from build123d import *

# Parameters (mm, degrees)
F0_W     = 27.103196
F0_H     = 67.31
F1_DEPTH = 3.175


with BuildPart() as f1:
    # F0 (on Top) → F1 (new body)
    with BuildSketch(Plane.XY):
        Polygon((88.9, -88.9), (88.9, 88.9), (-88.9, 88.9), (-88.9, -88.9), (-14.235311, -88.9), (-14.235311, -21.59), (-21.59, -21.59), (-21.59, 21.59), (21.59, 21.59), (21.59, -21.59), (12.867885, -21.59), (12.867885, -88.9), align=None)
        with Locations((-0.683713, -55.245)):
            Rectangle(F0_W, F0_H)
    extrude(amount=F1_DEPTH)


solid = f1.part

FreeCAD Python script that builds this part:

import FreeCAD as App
import Part
import Sketcher

V = App.Vector
Q = App.Units.Quantity

doc = App.newDocument("Part")
body = doc.addObject("PartDesign::Body", "Body")

# Sketch on XY plane
sketch1 = body.newObject("Sketcher::SketchObject", "Sketch")
sketch1.AttachmentSupport = (doc.getObject("XY_Plane"), [""])
sketch1.MapMode = "FlatFace"
sketch1.addGeometry([
    Part.LineSegment(V(88.9, -88.9, 0), V(88.9, 88.9, 0)),  # 0
    Part.LineSegment(V(88.9, 88.9, 0), V(-88.9, 88.9, 0)),  # 1
    Part.LineSegment(V(-88.9, 88.9, 0), V(-88.9, -88.9, 0)),  # 2
    Part.LineSegment(V(-88.9, -88.9, 0), V(88.9, -88.9, 0)),  # 3
    Part.LineSegment(V(-21.59, -21.59, 0), V(-21.59, 21.59, 0)),  # 4
    Part.LineSegment(V(-21.59, 21.59, 0), V(21.59, 21.59, 0)),  # 5
    Part.LineSegment(V(21.59, 21.59, 0), V(21.59, -21.59, 0)),  # 6
    Part.LineSegment(V(21.59, -21.59, 0), V(-21.59, -21.59, 0)),  # 7
], False)
sketch1.addConstraint([
    Sketcher.Constraint("Coincident", 0, 2, 1, 1),
    Sketcher.Constraint("Coincident", 1, 2, 2, 1),
    Sketcher.Constraint("Coincident", 2, 2, 3, 1),
    Sketcher.Constraint("Coincident", 3, 2, 0, 1),
    Sketcher.Constraint("Coincident", 4, 2, 5, 1),
    Sketcher.Constraint("Coincident", 5, 2, 6, 1),
    Sketcher.Constraint("Coincident", 6, 2, 7, 1),
    Sketcher.Constraint("Coincident", 7, 2, 4, 1),
    Sketcher.Constraint("Vertical", 0),
    Sketcher.Constraint("Horizontal", 1),
    Sketcher.Constraint("Vertical", 2),
    Sketcher.Constraint("Horizontal", 3),
    Sketcher.Constraint("Vertical", 4),
    Sketcher.Constraint("Horizontal", 5),
    Sketcher.Constraint("Vertical", 6),
    Sketcher.Constraint("Horizontal", 7),
    Sketcher.Constraint("Symmetric", 0, 2, 2, 2, -1, 1),
    Sketcher.Constraint("Symmetric", 4, 2, 6, 2, -1, 1),
    Sketcher.Constraint("Equal", 3, 0),
    Sketcher.Constraint("Equal", 7, 4),
    Sketcher.Constraint("DistanceX", 1, 2, 1, 1, Q("7 in")),
    Sketcher.Constraint("DistanceX", 5, 1, 5, 2, Q("1.7 in")),
])
pad1 = body.newObject("PartDesign::Pad", "Pad")
pad1.Profile = sketch1
pad1.Length = Q("0.125 in")

doc.recompute()
